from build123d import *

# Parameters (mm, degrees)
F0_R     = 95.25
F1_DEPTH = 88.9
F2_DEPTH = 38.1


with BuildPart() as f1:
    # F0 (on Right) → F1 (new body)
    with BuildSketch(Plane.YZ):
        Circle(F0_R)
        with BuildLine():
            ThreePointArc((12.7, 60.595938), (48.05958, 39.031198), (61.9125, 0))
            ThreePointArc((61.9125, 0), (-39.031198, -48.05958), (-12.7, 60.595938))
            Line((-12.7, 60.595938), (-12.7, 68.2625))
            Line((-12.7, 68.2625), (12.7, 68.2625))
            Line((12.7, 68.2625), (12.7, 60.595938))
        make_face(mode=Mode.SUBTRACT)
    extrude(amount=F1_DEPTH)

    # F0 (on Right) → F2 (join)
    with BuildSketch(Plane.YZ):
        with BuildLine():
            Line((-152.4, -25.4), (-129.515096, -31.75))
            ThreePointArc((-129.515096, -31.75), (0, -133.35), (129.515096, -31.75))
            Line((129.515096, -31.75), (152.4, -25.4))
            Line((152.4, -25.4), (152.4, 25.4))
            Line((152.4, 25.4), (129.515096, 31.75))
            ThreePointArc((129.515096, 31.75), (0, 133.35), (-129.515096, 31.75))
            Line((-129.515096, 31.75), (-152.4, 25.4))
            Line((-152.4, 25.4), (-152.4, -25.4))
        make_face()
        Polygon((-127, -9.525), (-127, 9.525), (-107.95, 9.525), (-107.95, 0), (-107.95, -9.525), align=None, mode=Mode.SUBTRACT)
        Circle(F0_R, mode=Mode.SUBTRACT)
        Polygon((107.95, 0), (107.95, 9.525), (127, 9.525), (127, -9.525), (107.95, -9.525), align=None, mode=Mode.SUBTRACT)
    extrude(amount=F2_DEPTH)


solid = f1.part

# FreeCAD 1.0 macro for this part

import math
import FreeCAD as App
import Part
import Sketcher

V = App.Vector
Q = App.Units.Quantity


def add_polygon(sketch, points):
    """Adds a closed chain of lines whose ends are joined by coincident constraints."""
    first, n = sketch.GeometryCount, len(points)
    for a, b in zip(points, points[1:] + points[:1]):
        sketch.addGeometry(Part.LineSegment(App.Vector(*a, 0), App.Vector(*b, 0)), False)
    for i in range(n):
        sketch.addConstraint(Sketcher.Constraint("Coincident", first + i, 2, first + (i + 1) % n, 1))

doc = App.newDocument("Part")
body = doc.addObject("PartDesign::Body", "Body")

# Sketch on YZ plane
sketch1 = body.newObject("Sketcher::SketchObject", "Sketch")
sketch1.AttachmentSupport = (doc.getObject("YZ_Plane"), [""])
sketch1.MapMode = "FlatFace"
sketch1.addGeometry(Part.Circle(V(0, 0, 0), V(0, 0, 1), 95), False)
sketch1.addGeometry(Part.LineSegment(V(13, 68, 0), V(13, 61, 0)), False)
sketch1.addGeometry(Part.ArcOfCircle(Part.Circle(V(0, 0, 0), V(0, 0, 1), 62), math.radians(0), math.radians(78)), False)
sketch1.addGeometry(Part.ArcOfCircle(Part.Circle(V(0, 0, 0), V(0, 0, 1), 62), math.radians(102), math.radians(360)), False)
sketch1.addGeometry(Part.LineSegment(V(-13, 61, 0), V(-13, 68, 0)), False)
sketch1.addGeometry(Part.LineSegment(V(-13, 68, 0), V(13, 68, 0)), False)
sketch1.addConstraint(Sketcher.Constraint("Coincident", 1, 2, 2, 2))
sketch1.addConstraint(Sketcher.Constraint("Tangent", 2, 1, 3, 2))
sketch1.addConstraint(Sketcher.Constraint("Coincident", 3, 1, 4, 1))
sketch1.addConstraint(Sketcher.Constraint("Coincident", 4, 2, 5, 1))
sketch1.addConstraint(Sketcher.Constraint("Coincident", 5, 2, 1, 1))
sketch1.addConstraint(Sketcher.Constraint("Vertical", 1))
sketch1.addConstraint(Sketcher.Constraint("Vertical", 4))
sketch1.addConstraint(Sketcher.Constraint("Horizontal", 5))
sketch1.addConstraint(Sketcher.Constraint("Coincident", 0, 3, -1, 1))
sketch1.addConstraint(Sketcher.Constraint("Coincident", 2, 3, -1, 1))
sketch1.addConstraint(Sketcher.Constraint("Equal", 2, 3))
sketch1.addConstraint(Sketcher.Constraint("PointOnObject", 2, 1, -1))
sketch1.addConstraint(Sketcher.Constraint("Horizontal", 1, 2, 3, 1))
sketch1.addConstraint(Sketcher.Constraint("Diameter", 0, Q("7.5 in")))
sketch1.addConstraint(Sketcher.Constraint("DistanceX", 5, 1, 5, 2, Q("1 in")))
sketch1.addConstraint(Sketcher.Constraint("Radius", 2, Q("2.4375 in")))
sketch1.addConstraint(Sketcher.Constraint("DistanceY", -1, 1, 4, 2, Q("2.6875 in")))
pad1 = body.newObject("PartDesign::Pad", "Pad")
pad1.Profile = sketch1
pad1.Length = Q("3.5 in")

# Sketch on YZ plane
sketch2 = body.newObject("Sketcher::SketchObject", "Sketch001")
sketch2.AttachmentSupport = (doc.getObject("YZ_Plane"), [""])
sketch2.MapMode = "FlatFace"
sketch2.addGeometry(Part.LineSegment(V(-152, -25, 0), V(-130, -32, 0)), False)  # 0
sketch2.addGeometry(Part.ArcOfCircle(Part.Circle(V(0, 0, 0), V(0, 0, 1), 133), math.radians(-166), math.radians(-14)), False)  # 1
sketch2.addGeometry(Part.LineSegment(V(130, -32, 0), V(152, -25, 0)), False)  # 2
sketch2.addGeometry(Part.LineSegment(V(152, -25, 0), V(152, 25, 0)), False)  # 3
sketch2.addGeometry(Part.LineSegment(V(152, 25, 0), V(130, 32, 0)), False)  # 4
sketch2.addGeometry(Part.ArcOfCircle(Part.Circle(V(0, 0, 0), V(0, 0, 1), 133), math.radians(14), math.radians(166)), False)  # 5
sketch2.addGeometry(Part.LineSegment(V(-130, 32, 0), V(-152, 25, 0)), False)  # 6
sketch2.addGeometry(Part.LineSegment(V(-152, 25, 0), V(-152, -25, 0)), False)  # 7
add_polygon(sketch2, [(-108, -10), (-127, -10), (-127, 10), (-108, 10)])  # lines 8-11
sketch2.addGeometry(Part.Circle(V(0, 0, 0), V(0, 0, 1), 95), False)  # 12
add_polygon(sketch2, [(108, -10), (108, 10), (127, 10), (127, -10)])  # lines 13-16
sketch2.addConstraint(Sketcher.Constraint("Coincident", 0, 2, 1, 1))
sketch2.addConstraint(Sketcher.Constraint("Coincident", 1, 2, 2, 1))
sketch2.addConstraint(Sketcher.Constraint("Coincident", 2, 2, 3, 1))
sketch2.addConstraint(Sketcher.Constraint("Coincident", 3, 2, 4, 1))
sketch2.addConstraint(Sketcher.Constraint("Coincident", 4, 2, 5, 1))
sketch2.addConstraint(Sketcher.Constraint("Coincident", 5, 2, 6, 1))
sketch2.addConstraint(Sketcher.Constraint("Coincident", 6, 2, 7, 1))
sketch2.addConstraint(Sketcher.Constraint("Coincident", 7, 2, 0, 1))
sketch2.addConstraint(Sketcher.Constraint("Vertical", 3))
sketch2.addConstraint(Sketcher.Constraint("Vertical", 7))
sketch2.addConstraint(Sketcher.Constraint("Horizontal", 8))
sketch2.addConstraint(Sketcher.Constraint("Vertical", 9))
sketch2.addConstraint(Sketcher.Constraint("Horizontal", 10))
sketch2.addConstraint(Sketcher.Constraint("Vertical", 11))
sketch2.addConstraint(Sketcher.Constraint("Vertical", 13))
sketch2.addConstraint(Sketcher.Constraint("Horizontal", 14))
sketch2.addConstraint(Sketcher.Constraint("Vertical", 15))
sketch2.addConstraint(Sketcher.Constraint("Horizontal", 16))
sketch2.addConstraint(Sketcher.Constraint("Coincident", 1, 3, -1, 1))
sketch2.addConstraint(Sketcher.Constraint("Coincident", 5, 3, -1, 1))
sketch2.addConstraint(Sketcher.Constraint("Coincident", 12, 3, -1, 1))
sketch2.addConstraint(Sketcher.Constraint("Equal", 1, 5))
sketch2.addConstraint(Sketcher.Constraint("Symmetric", 2, 2, 6, 2, -1, 1))
sketch2.addConstraint(Sketcher.Constraint("Symmetric", 11, 2, 13, 2, -1, 1))
sketch2.addConstraint(Sketcher.Constraint("Symmetric", 9, 2, 15, 2, -1, 1))
sketch2.addConstraint(Sketcher.Constraint("Parallel", 0, 4))
sketch2.addConstraint(Sketcher.Constraint("Parallel", 2, 6))
sketch2.addConstraint(Sketcher.Constraint("Horizontal", 0, 2, 1, 2))
sketch2.addConstraint(Sketcher.Constraint("Horizontal", 4, 2, 5, 2))
sketch2.addConstraint(Sketcher.Constraint("Horizontal", 3, 2, 6, 2))
sketch2.addConstraint(Sketcher.Constraint("Horizontal", 10, 2, 13, 2))
sketch2.addConstraint(Sketcher.Constraint("Equal", 16, 9))
sketch2.addConstraint(Sketcher.Constraint("Diameter", 12, Q("7.5 in")))
sketch2.addConstraint(Sketcher.Constraint("DistanceY", 3, 1, 3, 2, Q("2 in")))
sketch2.addConstraint(Sketcher.Constraint("Radius", 1, Q("5.25 in")))
sketch2.addConstraint(Sketcher.Constraint("DistanceX", -1, 1, 2, 2, Q("6 in")))
sketch2.addConstraint(Sketcher.Constraint("DistanceX", 8, 2, -1, 1, Q("5 in")))
sketch2.addConstraint(Sketcher.Constraint("DistanceX", 8, 2, 8, 1, Q("0.75 in")))
sketch2.addConstraint(Sketcher.Constraint("DistanceY", 1, 2, 4, 2, Q("2.5 in")))
pad2 = body.newObject("PartDesign::Pad", "Pad001")
pad2.Profile = sketch2
pad2.Length = Q("1.5 in")

doc.recompute()
